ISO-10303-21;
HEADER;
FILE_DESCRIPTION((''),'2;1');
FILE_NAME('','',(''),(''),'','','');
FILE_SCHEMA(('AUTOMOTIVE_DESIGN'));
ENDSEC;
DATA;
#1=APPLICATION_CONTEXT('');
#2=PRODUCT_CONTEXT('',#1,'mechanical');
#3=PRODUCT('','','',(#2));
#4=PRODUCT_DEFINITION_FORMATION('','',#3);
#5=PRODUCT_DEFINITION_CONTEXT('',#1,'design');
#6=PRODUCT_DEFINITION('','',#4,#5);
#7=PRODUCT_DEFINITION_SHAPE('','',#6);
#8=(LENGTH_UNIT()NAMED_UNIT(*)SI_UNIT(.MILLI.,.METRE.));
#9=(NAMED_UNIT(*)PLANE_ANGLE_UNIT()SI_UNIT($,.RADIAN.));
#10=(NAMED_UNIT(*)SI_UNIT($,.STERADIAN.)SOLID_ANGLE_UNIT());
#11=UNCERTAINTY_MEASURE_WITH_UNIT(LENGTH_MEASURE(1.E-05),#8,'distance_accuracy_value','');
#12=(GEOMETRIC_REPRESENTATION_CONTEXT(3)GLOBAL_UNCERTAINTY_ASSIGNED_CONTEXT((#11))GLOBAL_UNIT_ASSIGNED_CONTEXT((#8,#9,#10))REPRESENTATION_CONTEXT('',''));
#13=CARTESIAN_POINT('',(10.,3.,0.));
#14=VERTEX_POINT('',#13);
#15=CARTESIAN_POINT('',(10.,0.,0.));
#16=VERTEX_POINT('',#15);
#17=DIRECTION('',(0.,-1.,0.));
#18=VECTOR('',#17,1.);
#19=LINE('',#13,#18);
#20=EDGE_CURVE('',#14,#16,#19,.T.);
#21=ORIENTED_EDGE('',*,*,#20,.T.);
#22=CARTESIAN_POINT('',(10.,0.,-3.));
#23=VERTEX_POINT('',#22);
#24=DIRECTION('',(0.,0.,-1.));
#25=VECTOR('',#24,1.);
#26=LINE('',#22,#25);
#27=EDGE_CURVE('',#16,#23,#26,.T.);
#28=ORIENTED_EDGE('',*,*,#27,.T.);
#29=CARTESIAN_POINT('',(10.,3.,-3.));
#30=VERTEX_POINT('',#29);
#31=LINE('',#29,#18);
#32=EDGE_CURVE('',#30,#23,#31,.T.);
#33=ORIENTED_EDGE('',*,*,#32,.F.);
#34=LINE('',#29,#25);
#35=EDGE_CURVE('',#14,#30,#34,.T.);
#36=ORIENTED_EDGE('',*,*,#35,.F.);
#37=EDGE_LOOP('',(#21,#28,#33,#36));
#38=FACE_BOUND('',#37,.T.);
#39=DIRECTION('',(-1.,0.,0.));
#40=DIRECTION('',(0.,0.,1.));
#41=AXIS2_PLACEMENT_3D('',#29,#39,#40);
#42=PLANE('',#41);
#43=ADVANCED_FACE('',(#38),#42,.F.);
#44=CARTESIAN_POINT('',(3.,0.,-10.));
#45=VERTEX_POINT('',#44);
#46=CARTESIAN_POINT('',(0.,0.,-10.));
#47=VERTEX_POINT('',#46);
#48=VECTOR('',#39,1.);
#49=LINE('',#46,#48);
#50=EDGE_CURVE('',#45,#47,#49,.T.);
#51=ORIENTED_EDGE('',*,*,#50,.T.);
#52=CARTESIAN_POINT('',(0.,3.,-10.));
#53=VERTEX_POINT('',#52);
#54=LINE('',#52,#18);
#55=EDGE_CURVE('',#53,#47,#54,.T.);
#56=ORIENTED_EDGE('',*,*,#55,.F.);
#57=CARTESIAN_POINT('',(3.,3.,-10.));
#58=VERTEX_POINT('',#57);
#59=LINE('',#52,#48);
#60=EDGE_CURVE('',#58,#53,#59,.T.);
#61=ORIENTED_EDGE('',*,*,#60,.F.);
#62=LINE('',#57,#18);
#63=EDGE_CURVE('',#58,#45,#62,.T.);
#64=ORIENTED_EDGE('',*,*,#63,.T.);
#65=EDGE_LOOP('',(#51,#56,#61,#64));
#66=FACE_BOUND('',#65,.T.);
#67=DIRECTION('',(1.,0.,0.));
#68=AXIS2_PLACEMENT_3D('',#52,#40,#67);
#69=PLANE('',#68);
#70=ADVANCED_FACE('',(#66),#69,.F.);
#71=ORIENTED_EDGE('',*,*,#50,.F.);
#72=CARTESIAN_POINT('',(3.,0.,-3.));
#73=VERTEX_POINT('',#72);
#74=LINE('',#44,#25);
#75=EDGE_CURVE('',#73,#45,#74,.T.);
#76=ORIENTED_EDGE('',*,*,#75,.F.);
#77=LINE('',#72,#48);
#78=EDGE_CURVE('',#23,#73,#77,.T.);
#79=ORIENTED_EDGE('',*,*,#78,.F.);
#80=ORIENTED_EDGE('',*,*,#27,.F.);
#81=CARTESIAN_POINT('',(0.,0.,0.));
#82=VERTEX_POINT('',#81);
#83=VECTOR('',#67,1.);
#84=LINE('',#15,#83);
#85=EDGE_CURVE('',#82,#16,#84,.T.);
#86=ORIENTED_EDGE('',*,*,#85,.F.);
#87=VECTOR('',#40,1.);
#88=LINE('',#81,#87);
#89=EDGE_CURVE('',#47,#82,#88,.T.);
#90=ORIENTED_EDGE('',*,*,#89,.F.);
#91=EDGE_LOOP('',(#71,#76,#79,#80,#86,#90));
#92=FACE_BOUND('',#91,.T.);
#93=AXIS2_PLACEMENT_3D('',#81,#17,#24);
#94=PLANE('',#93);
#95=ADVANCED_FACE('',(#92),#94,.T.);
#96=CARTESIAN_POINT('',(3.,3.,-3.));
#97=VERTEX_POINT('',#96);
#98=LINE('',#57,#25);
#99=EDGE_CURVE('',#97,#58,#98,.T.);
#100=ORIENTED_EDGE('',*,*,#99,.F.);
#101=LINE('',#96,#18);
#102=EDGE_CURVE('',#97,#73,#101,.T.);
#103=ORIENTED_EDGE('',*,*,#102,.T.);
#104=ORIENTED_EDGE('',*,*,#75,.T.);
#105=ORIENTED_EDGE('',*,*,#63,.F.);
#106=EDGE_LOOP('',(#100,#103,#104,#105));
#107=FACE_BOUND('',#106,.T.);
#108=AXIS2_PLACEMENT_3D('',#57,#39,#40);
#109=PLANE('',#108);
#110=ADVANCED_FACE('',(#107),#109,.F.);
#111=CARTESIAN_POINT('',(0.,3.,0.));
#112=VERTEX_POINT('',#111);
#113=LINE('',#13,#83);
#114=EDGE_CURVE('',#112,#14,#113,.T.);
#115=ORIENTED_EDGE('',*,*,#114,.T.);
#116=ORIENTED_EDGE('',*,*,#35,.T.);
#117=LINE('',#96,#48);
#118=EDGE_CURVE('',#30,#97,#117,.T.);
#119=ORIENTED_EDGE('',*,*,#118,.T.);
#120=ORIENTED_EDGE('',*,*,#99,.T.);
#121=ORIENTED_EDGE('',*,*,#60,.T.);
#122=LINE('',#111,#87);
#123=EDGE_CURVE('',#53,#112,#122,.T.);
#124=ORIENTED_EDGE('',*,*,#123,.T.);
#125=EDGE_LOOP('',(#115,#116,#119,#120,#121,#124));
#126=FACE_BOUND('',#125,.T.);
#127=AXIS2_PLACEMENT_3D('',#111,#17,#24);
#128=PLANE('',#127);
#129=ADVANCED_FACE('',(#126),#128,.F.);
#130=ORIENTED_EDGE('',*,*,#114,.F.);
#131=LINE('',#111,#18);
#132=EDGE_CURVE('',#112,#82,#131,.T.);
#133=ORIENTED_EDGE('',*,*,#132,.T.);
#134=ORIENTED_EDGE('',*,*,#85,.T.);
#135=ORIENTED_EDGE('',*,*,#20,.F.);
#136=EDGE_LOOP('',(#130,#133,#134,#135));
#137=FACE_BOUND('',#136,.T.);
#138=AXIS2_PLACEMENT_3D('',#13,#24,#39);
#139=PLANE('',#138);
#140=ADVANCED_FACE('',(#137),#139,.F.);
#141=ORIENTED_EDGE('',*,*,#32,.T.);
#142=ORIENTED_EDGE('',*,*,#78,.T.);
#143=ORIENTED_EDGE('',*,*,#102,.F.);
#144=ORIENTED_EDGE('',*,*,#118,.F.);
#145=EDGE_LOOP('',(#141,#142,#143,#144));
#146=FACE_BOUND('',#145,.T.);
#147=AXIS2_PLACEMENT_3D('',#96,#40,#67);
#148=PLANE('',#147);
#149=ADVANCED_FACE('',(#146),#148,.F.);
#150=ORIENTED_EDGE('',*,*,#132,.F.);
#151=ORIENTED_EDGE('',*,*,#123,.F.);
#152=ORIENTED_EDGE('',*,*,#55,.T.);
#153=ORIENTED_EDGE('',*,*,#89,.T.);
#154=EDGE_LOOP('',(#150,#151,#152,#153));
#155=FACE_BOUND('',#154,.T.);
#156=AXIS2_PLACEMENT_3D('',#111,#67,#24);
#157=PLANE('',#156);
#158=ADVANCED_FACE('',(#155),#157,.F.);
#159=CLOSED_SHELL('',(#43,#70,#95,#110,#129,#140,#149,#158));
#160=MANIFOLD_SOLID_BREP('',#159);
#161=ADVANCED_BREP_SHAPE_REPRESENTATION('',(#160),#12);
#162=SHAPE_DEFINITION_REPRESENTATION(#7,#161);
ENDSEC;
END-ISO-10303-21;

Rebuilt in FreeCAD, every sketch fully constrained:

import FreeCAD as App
import Part
import Sketcher

doc = App.newDocument("Part")
body = doc.addObject("PartDesign::Body", "Body")

# Sketch on XZ plane
sketch1 = body.newObject("Sketcher::SketchObject", "Sketch")
sketch1.AttachmentSupport = (doc.getObject("XZ_Plane"), [""])
sketch1.MapMode = "FlatFace"
sketch1.addGeometry([
    Part.LineSegment(App.Vector(0, -10, 0), App.Vector(0, 0, 0)),  # 0
    Part.LineSegment(App.Vector(0, 0, 0), App.Vector(10, 0, 0)),  # 1
    Part.LineSegment(App.Vector(10, 0, 0), App.Vector(10, -3, 0)),  # 2
    Part.LineSegment(App.Vector(10, -3, 0), App.Vector(3, -3, 0)),  # 3
    Part.LineSegment(App.Vector(3, -3, 0), App.Vector(3, -10, 0)),  # 4
    Part.LineSegment(App.Vector(3, -10, 0), App.Vector(0, -10, 0)),  # 5
], False)
sketch1.addConstraint([
    Sketcher.Constraint("Coincident", 0, 2, 1, 1),
    Sketcher.Constraint("Coincident", 1, 2, 2, 1),
    Sketcher.Constraint("Coincident", 2, 2, 3, 1),
    Sketcher.Constraint("Coincident", 3, 2, 4, 1),
    Sketcher.Constraint("Coincident", 4, 2, 5, 1),
    Sketcher.Constraint("Coincident", 5, 2, 0, 1),
    Sketcher.Constraint("Vertical", 0),
    Sketcher.Constraint("Horizontal", 1),
    Sketcher.Constraint("Vertical", 2),
    Sketcher.Constraint("Horizontal", 3),
    Sketcher.Constraint("Vertical", 4),
    Sketcher.Constraint("Horizontal", 5),
    Sketcher.Constraint("Coincident", 0, 2, -1, 1),
    Sketcher.Constraint("Equal", 1, 0),
    Sketcher.Constraint("Equal", 5, 2),
    Sketcher.Constraint("DistanceX", 1, 1, 1, 2, 10.0),
    Sketcher.Constraint("DistanceX", 3, 2, 3, 1, 7.0),
])
pad1 = body.newObject("PartDesign::Pad", "Pad")
pad1.Profile = sketch1
pad1.Length = 3
pad1.Reversed = True

doc.recompute()
